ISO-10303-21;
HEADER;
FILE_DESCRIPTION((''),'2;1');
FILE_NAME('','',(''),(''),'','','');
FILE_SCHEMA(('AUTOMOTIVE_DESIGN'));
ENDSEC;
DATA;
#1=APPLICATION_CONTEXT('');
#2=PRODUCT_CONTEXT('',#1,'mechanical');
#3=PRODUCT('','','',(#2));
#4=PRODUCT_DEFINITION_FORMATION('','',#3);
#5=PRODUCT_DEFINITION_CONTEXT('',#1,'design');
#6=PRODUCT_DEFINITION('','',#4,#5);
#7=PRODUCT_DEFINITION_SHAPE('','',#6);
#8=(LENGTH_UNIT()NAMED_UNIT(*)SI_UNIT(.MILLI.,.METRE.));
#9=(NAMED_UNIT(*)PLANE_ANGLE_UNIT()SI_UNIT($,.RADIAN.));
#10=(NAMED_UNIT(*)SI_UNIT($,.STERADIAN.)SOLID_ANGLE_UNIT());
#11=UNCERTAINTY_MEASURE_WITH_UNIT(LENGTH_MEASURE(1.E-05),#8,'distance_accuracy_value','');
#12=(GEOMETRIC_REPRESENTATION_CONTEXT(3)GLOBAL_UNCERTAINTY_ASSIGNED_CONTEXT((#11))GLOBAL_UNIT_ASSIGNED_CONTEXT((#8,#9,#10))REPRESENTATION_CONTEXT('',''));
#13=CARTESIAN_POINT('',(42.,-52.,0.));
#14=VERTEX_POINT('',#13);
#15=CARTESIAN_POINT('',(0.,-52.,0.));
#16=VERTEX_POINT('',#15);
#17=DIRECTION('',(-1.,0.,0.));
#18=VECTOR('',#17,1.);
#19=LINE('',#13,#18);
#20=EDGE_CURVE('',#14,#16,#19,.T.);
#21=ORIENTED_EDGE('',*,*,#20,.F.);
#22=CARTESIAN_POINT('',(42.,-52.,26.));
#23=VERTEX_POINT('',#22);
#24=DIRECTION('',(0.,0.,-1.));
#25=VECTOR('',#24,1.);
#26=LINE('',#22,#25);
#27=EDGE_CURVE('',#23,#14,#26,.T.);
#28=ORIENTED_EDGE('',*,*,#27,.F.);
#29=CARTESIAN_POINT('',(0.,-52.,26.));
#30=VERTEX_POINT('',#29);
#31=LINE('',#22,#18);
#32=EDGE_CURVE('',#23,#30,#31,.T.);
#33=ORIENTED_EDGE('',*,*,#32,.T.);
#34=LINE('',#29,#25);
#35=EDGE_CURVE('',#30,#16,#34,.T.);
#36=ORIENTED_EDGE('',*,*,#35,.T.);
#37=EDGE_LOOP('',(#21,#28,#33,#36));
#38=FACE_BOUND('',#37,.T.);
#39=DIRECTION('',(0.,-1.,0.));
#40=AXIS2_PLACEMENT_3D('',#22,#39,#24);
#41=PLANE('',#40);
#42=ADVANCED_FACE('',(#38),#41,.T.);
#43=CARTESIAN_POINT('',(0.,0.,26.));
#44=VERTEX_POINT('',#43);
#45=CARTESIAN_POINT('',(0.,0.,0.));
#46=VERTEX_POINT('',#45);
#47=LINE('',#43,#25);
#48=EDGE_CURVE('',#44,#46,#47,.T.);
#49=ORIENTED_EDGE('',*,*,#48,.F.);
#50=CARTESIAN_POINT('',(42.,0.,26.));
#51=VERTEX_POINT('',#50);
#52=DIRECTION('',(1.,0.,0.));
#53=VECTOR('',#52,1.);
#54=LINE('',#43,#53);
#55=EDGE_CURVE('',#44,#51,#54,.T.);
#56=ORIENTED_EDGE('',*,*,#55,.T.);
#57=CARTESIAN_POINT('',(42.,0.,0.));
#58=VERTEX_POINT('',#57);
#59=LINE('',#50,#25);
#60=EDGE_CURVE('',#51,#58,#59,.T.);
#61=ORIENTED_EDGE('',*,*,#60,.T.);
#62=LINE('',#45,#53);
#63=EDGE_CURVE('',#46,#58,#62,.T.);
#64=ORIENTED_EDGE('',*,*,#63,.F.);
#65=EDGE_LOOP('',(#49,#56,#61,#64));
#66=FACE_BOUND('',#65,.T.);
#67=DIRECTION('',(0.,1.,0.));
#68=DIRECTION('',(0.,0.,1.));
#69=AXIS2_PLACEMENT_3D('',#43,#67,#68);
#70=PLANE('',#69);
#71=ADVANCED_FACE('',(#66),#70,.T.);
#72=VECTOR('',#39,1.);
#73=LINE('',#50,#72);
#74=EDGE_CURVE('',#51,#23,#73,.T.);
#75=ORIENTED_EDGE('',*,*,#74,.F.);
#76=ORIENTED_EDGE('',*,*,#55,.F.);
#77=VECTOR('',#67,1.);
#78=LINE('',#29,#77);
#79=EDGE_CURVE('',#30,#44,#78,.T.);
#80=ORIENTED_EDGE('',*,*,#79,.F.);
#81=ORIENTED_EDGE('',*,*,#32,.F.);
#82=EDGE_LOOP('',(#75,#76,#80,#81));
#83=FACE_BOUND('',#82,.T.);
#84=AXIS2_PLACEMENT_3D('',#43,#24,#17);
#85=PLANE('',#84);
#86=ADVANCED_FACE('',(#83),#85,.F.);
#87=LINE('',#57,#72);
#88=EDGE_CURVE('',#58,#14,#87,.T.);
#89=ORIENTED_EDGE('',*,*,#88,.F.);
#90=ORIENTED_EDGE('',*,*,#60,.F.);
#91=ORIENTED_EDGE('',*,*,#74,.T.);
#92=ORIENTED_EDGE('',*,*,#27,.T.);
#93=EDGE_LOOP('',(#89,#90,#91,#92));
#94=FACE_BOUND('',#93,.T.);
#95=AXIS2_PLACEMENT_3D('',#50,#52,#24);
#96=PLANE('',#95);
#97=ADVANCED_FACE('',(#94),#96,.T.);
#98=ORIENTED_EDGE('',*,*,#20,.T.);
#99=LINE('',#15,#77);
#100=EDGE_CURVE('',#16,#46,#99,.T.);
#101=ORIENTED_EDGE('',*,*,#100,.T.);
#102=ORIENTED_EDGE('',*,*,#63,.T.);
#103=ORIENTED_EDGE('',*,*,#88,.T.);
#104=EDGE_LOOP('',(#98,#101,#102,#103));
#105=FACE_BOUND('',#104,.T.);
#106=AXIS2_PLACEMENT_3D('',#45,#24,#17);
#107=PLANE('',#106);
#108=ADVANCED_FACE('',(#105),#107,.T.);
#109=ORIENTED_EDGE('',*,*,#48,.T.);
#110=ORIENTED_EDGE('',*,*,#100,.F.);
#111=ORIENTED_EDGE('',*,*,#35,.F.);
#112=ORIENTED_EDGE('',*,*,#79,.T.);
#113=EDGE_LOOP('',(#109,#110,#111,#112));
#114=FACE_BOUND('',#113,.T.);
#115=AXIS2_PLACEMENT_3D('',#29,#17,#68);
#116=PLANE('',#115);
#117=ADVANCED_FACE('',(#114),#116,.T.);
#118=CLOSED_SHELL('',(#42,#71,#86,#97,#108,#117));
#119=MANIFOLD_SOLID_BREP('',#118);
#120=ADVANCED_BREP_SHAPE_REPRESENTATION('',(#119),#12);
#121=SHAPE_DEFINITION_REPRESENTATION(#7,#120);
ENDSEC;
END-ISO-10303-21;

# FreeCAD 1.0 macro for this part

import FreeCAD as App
import Part
import Sketcher
Q = App.Units.Quantity


def add_polygon(sketch, points):
    """Adds a closed chain of lines whose ends are joined by coincident constraints."""
    first, n = sketch.GeometryCount, len(points)
    for a, b in zip(points, points[1:] + points[:1]):
        sketch.addGeometry(Part.LineSegment(App.Vector(*a, 0), App.Vector(*b, 0)), False)
    for i in range(n):
        sketch.addConstraint(Sketcher.Constraint("Coincident", first + i, 2, first + (i + 1) % n, 1))

doc = App.newDocument("Part")
body = doc.addObject("PartDesign::Body", "Body")

# Sketch on XY plane
sketch1 = doc.addObject("Sketcher::SketchObject", "Sketch")
body.addObject(sketch1)
sketch1.AttachmentSupport = (doc.XY_Plane, [""])
sketch1.MapMode = "FlatFace"
add_polygon(sketch1, [(42, 0), (42, -52), (0, -52), (0, 0)])  # lines 0-3
sketch1.addConstraint([
    Sketcher.Constraint("Vertical", 0),
    Sketcher.Constraint("Horizontal", 1),
    Sketcher.Constraint("Vertical", 2),
    Sketcher.Constraint("Horizontal", 3),
    Sketcher.Constraint("Coincident", 2, 2, -1, 1),
    Sketcher.Constraint("DistanceX", 1, 2, 1, 1, Q("42 mm")),
    Sketcher.Constraint("DistanceY", 0, 2, 0, 1, Q("52 mm")),
])
pad1 = doc.addObject("PartDesign::Pad", "Pad")
body.addObject(pad1)
pad1.Profile = sketch1
pad1.Length = 26

doc.recompute()
